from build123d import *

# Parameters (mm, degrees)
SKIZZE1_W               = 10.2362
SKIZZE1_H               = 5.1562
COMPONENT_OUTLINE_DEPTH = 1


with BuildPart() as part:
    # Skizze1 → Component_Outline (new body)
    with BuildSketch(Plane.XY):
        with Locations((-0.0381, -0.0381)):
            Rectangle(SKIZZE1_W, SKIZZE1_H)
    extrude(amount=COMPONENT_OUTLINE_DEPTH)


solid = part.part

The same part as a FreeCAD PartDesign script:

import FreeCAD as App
import Part
import Sketcher

V = App.Vector
Q = App.Units.Quantity


def add_polygon(sketch, points):
    """Adds a closed chain of lines whose ends are joined by coincident constraints."""
    first, n = sketch.GeometryCount, len(points)
    for a, b in zip(points, points[1:] + points[:1]):
        sketch.addGeometry(Part.LineSegment(App.Vector(*a, 0), App.Vector(*b, 0)), False)
    for i in range(n):
        sketch.addConstraint(Sketcher.Constraint("Coincident", first + i, 2, first + (i + 1) % n, 1))

doc = App.newDocument("Part")
body = doc.addObject("PartDesign::Body", "Body")

# Sketch on XY plane
sketch1 = body.newObject("Sketcher::SketchObject", "Sketch")
sketch1.AttachmentSupport = (doc.getObject("XY_Plane"), [""])
sketch1.MapMode = "FlatFace"
add_polygon(sketch1, [(-5, 3), (-5, -3), (5, -3), (5, 3)])  # lines 0-3
sketch1.addConstraint([
    Sketcher.Constraint("Vertical", 0),
    Sketcher.Constraint("Horizontal", 1),
    Sketcher.Constraint("Vertical", 2),
    Sketcher.Constraint("Horizontal", 3),
    Sketcher.Constraint("DistanceX", -1, 1, 1, 2, Q("0.2 in")),
    Sketcher.Constraint("DistanceY", -1, 1, 2, 2, Q("0.1 in")),
    Sketcher.Constraint("DistanceX", 1, 1, 1, 2, Q("0.403 in")),
    Sketcher.Constraint("DistanceY", 0, 2, 0, 1, Q("0.203 in")),
])
pad1 = body.newObject("PartDesign::Pad", "Pad")
pad1.Profile = sketch1
pad1.Length = 1

doc.recompute()
